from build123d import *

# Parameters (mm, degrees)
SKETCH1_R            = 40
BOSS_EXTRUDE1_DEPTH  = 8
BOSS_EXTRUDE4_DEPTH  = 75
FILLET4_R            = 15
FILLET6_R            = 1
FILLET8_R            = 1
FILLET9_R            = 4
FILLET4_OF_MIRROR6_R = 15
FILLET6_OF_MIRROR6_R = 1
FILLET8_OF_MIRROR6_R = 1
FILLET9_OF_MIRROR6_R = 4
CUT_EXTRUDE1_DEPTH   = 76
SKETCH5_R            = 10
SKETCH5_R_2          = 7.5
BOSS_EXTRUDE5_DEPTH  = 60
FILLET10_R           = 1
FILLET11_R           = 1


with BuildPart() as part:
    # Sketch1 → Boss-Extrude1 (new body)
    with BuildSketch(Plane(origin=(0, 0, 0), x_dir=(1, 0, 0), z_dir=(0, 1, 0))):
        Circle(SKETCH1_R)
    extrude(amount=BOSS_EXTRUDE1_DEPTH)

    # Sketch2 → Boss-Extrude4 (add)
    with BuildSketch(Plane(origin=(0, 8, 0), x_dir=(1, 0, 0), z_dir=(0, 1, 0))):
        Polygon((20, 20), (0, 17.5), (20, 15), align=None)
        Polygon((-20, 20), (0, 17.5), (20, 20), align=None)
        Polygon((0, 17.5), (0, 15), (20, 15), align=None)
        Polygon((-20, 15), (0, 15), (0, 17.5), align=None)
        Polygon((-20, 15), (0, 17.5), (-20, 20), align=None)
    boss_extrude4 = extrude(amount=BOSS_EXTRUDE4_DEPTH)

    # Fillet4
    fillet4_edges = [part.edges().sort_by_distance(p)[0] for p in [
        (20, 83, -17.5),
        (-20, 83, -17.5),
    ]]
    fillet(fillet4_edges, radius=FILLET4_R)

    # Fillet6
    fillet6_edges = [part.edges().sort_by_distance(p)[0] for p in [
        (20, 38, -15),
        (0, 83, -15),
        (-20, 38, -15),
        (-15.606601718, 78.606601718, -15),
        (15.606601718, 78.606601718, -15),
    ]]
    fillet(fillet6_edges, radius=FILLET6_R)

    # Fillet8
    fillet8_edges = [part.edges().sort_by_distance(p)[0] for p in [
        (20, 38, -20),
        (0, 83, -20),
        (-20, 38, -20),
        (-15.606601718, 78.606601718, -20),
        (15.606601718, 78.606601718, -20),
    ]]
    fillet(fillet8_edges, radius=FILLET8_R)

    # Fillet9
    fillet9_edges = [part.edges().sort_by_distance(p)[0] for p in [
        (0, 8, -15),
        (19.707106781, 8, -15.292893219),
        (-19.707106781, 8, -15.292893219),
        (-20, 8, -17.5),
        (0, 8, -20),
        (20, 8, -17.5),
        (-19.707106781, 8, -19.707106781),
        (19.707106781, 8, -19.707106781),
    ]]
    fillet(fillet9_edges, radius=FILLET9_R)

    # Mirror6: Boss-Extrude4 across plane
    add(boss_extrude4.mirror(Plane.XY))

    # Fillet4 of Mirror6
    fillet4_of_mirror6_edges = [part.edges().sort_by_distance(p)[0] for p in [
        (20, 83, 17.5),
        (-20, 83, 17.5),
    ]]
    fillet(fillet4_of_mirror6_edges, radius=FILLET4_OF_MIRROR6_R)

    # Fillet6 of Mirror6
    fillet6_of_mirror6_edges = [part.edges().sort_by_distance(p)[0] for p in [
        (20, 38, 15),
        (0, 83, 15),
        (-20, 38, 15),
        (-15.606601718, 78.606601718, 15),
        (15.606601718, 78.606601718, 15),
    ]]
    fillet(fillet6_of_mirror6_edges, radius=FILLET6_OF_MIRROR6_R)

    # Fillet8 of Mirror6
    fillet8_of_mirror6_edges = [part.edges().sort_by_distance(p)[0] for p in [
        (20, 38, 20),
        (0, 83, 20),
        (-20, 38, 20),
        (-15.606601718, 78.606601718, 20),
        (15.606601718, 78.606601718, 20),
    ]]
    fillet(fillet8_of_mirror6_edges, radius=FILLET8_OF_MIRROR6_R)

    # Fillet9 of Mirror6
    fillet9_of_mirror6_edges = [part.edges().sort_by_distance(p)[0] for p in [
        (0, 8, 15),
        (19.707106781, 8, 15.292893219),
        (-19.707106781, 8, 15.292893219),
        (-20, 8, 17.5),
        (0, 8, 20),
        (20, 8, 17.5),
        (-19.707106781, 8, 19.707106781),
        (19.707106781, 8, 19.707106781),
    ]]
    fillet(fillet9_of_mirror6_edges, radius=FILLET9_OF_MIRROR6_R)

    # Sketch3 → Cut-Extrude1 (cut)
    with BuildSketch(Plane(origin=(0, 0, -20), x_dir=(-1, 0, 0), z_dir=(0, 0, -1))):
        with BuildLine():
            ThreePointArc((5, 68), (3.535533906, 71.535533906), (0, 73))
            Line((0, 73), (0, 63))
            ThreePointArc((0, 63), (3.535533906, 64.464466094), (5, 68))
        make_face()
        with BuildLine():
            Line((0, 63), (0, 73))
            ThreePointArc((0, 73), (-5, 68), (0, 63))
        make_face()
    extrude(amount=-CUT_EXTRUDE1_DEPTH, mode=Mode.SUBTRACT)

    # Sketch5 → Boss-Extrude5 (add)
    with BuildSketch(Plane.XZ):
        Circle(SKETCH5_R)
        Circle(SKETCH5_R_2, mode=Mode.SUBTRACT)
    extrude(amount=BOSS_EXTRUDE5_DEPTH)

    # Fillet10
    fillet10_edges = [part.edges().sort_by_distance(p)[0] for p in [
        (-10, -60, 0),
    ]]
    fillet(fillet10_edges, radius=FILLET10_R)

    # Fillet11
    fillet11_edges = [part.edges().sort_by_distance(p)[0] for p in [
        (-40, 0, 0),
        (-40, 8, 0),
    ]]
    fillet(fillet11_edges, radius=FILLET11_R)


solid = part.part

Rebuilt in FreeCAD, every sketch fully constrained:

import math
import FreeCAD as App
import Part
import Sketcher
from FreeCAD import Vector
Q = App.Units.Quantity


def edges_at(feature, points):
    """Names of the edges that pass closest to the given points."""
    edges = feature.Shape.Edges
    near = lambda p: min(range(len(edges)), key=lambda i: edges[i].distToShape(Part.Vertex(*p))[0])
    return sorted({f"Edge{near(p) + 1}" for p in points})


def add_polygon(sketch, points):
    """Adds a closed chain of lines whose ends are joined by coincident constraints."""
    first, n = sketch.GeometryCount, len(points)
    for a, b in zip(points, points[1:] + points[:1]):
        sketch.addGeometry(Part.LineSegment(App.Vector(*a, 0), App.Vector(*b, 0)), False)
    for i in range(n):
        sketch.addConstraint(Sketcher.Constraint("Coincident", first + i, 2, first + (i + 1) % n, 1))

doc = App.newDocument("Part")
body = doc.addObject("PartDesign::Body", "Body")

# Sketch on XZ plane
sketch1 = body.newObject("Sketcher::SketchObject", "Sketch")
sketch1.AttachmentSupport = (doc.getObject("XZ_Plane"), [""])
sketch1.MapMode = "FlatFace"
sketch1.addGeometry(Part.Circle(Vector(0, 0, 0), Vector(0, 0, 1), 40), False)
sketch1.addConstraint([
    Sketcher.Constraint("Coincident", 0, 3, -1, 1),
    Sketcher.Constraint("Diameter", 0, Q("80 mm")),
])
pad1 = body.newObject("PartDesign::Pad", "Pad")
pad1.Profile = sketch1
pad1.Length = 8
pad1.Reversed = True

# Sketch on XZ plane
sketch2 = body.newObject("Sketcher::SketchObject", "Sketch001")
sketch2.AttachmentSupport = (doc.getObject("XZ_Plane"), [""])
sketch2.MapMode = "FlatFace"
sketch2.AttachmentOffset = App.Placement(Vector(0, 0, -8), App.Rotation())
add_polygon(sketch2, [(20, -15), (20, -20), (-20, -20), (-20, -15)])  # lines 0-3
sketch2.addConstraint([
    Sketcher.Constraint("Vertical", 0),
    Sketcher.Constraint("Horizontal", 1),
    Sketcher.Constraint("Vertical", 2),
    Sketcher.Constraint("Horizontal", 3),
    Sketcher.Constraint("DistanceX", 1, 2, 1, 1, Q("40 mm")),
    Sketcher.Constraint("DistanceY", 0, 2, 0, 1, Q("5 mm")),
    Sketcher.Constraint("DistanceX", -1, 1, 0, 2, Q("20 mm")),
    Sketcher.Constraint("DistanceY", 0, 2, -1, 1, Q("20 mm")),
])
pad2 = body.newObject("PartDesign::Pad", "Pad001")
pad2.Profile = sketch2
pad2.Length = 75
pad2.Reversed = True
doc.recompute()

fillet = body.newObject("PartDesign::Fillet", "Fillet")
fillet.Base = (pad2, edges_at(pad2, [(20, 83, -17.5), (-20, 83, -17.5)]))
fillet.Radius = 15
doc.recompute()

fillet2 = body.newObject("PartDesign::Fillet", "Fillet001")
fillet2.Base = (fillet, edges_at(fillet, [
    (20, 38, -15),
    (0, 83, -15),
    (-20, 38, -15),
    (-15.607, 78.607, -15),
    (15.607, 78.607, -15),
]))
fillet2.Radius = 1
doc.recompute()

fillet3 = body.newObject("PartDesign::Fillet", "Fillet002")
fillet3.Base = (fillet2, edges_at(fillet2, [
    (20, 38, -20),
    (0, 83, -20),
    (-20, 38, -20),
    (-15.607, 78.607, -20),
    (15.607, 78.607, -20),
]))
fillet3.Radius = 1
doc.recompute()

fillet4 = body.newObject("PartDesign::Fillet", "Fillet003")
fillet4.Base = (fillet3, edges_at(fillet3, [
    (0, 8, -15),
    (19.707, 8, -15.293),
    (-19.707, 8, -15.293),
    (-20, 8, -17.5),
    (0, 8, -20),
    (20, 8, -17.5),
    (-19.707, 8, -19.707),
    (19.707, 8, -19.707),
]))
fillet4.Radius = 4
doc.recompute()

mirrored = body.newObject("PartDesign::Mirrored", "Mirrored")
mirrored.Originals = [pad2]
mirrored.MirrorPlane = (doc.getObject("XY_Plane"), [""])
body.Tip = mirrored
doc.recompute()

fillet5 = body.newObject("PartDesign::Fillet", "Fillet004")
fillet5.Base = (mirrored, edges_at(mirrored, [(20, 83, 17.5), (-20, 83, 17.5)]))
fillet5.Radius = 15
doc.recompute()

fillet6 = body.newObject("PartDesign::Fillet", "Fillet005")
fillet6.Base = (fillet5, edges_at(fillet5, [
    (20, 38, 15),
    (0, 83, 15),
    (-20, 38, 15),
    (-15.607, 78.607, 15),
    (15.607, 78.607, 15),
]))
fillet6.Radius = 1
doc.recompute()

fillet7 = body.newObject("PartDesign::Fillet", "Fillet006")
fillet7.Base = (fillet6, edges_at(fillet6, [
    (20, 38, 20),
    (0, 83, 20),
    (-20, 38, 20),
    (-15.607, 78.607, 20),
    (15.607, 78.607, 20),
]))
fillet7.Radius = 1
doc.recompute()

fillet8 = body.newObject("PartDesign::Fillet", "Fillet007")
fillet8.Base = (fillet7, edges_at(fillet7, [
    (0, 8, 15),
    (19.707, 8, 15.293),
    (-19.707, 8, 15.293),
    (-20, 8, 17.5),
    (0, 8, 20),
    (20, 8, 17.5),
    (-19.707, 8, 19.707),
    (19.707, 8, 19.707),
]))
fillet8.Radius = 4

# Sketch on XY plane
sketch3 = body.newObject("Sketcher::SketchObject", "Sketch002")
sketch3.AttachmentSupport = (doc.getObject("XY_Plane"), [""])
sketch3.MapMode = "FlatFace"
sketch3.AttachmentOffset = App.Placement(Vector(0, 0, -20), App.Rotation())
sketch3.addGeometry([
    Part.ArcOfCircle(Part.Circle(Vector(0, 68, 0), Vector(0, 0, 1), 5), math.radians(90), math.radians(180)),
    Part.ArcOfCircle(Part.Circle(Vector(0, 68, 0), Vector(0, 0, 1), 5), math.radians(-90), math.radians(90)),
    Part.ArcOfCircle(Part.Circle(Vector(0, 68, 0), Vector(0, 0, 1), 5), math.radians(180), math.radians(270)),
], False)
sketch3.addConstraint([
    Sketcher.Constraint("Tangent", 0, 1, 1, 2),
    Sketcher.Constraint("Tangent", 1, 1, 2, 2),
    Sketcher.Constraint("Tangent", 2, 1, 0, 2),
    Sketcher.Constraint("PointOnObject", 0, 3, -2),
    Sketcher.Constraint("PointOnObject", 0, 1, -2),
    Sketcher.Constraint("PointOnObject", 1, 1, -2),
    Sketcher.Constraint("Horizontal", 1, 3, 2, 1),
    Sketcher.Constraint("Radius", 0, Q("5 mm")),
    Sketcher.Constraint("DistanceY", -1, 1, 0, 3, Q("68 mm")),
])
pocket1 = body.newObject("PartDesign::Pocket", "Pocket")
pocket1.Profile = sketch3
pocket1.Length = 76
pocket1.Reversed = True

# Sketch on XZ plane
sketch4 = body.newObject("Sketcher::SketchObject", "Sketch003")
sketch4.AttachmentSupport = (doc.getObject("XZ_Plane"), [""])
sketch4.MapMode = "FlatFace"
sketch4.addGeometry([
    Part.Circle(Vector(0, 0, 0), Vector(0, 0, 1), 10),
    Part.Circle(Vector(0, 0, 0), Vector(0, 0, 1), 7.5),
], False)
sketch4.addConstraint([
    Sketcher.Constraint("Coincident", 0, 3, -1, 1),
    Sketcher.Constraint("Coincident", 1, 3, -1, 1),
    Sketcher.Constraint("Diameter", 0, Q("20 mm")),
    Sketcher.Constraint("Diameter", 1, Q("15 mm")),
])
pad3 = body.newObject("PartDesign::Pad", "Pad002")
pad3.Profile = sketch4
pad3.Length = 60
doc.recompute()

fillet9 = body.newObject("PartDesign::Fillet", "Fillet008")
fillet9.Base = (pad3, edges_at(pad3, [(-10, -60, 0)]))
fillet9.Radius = 1
doc.recompute()

fillet10 = body.newObject("PartDesign::Fillet", "Fillet009")
fillet10.Base = (fillet9, edges_at(fillet9, [(-40, 0, 0), (-40, 8, 0)]))
fillet10.Radius = 1

doc.recompute()
